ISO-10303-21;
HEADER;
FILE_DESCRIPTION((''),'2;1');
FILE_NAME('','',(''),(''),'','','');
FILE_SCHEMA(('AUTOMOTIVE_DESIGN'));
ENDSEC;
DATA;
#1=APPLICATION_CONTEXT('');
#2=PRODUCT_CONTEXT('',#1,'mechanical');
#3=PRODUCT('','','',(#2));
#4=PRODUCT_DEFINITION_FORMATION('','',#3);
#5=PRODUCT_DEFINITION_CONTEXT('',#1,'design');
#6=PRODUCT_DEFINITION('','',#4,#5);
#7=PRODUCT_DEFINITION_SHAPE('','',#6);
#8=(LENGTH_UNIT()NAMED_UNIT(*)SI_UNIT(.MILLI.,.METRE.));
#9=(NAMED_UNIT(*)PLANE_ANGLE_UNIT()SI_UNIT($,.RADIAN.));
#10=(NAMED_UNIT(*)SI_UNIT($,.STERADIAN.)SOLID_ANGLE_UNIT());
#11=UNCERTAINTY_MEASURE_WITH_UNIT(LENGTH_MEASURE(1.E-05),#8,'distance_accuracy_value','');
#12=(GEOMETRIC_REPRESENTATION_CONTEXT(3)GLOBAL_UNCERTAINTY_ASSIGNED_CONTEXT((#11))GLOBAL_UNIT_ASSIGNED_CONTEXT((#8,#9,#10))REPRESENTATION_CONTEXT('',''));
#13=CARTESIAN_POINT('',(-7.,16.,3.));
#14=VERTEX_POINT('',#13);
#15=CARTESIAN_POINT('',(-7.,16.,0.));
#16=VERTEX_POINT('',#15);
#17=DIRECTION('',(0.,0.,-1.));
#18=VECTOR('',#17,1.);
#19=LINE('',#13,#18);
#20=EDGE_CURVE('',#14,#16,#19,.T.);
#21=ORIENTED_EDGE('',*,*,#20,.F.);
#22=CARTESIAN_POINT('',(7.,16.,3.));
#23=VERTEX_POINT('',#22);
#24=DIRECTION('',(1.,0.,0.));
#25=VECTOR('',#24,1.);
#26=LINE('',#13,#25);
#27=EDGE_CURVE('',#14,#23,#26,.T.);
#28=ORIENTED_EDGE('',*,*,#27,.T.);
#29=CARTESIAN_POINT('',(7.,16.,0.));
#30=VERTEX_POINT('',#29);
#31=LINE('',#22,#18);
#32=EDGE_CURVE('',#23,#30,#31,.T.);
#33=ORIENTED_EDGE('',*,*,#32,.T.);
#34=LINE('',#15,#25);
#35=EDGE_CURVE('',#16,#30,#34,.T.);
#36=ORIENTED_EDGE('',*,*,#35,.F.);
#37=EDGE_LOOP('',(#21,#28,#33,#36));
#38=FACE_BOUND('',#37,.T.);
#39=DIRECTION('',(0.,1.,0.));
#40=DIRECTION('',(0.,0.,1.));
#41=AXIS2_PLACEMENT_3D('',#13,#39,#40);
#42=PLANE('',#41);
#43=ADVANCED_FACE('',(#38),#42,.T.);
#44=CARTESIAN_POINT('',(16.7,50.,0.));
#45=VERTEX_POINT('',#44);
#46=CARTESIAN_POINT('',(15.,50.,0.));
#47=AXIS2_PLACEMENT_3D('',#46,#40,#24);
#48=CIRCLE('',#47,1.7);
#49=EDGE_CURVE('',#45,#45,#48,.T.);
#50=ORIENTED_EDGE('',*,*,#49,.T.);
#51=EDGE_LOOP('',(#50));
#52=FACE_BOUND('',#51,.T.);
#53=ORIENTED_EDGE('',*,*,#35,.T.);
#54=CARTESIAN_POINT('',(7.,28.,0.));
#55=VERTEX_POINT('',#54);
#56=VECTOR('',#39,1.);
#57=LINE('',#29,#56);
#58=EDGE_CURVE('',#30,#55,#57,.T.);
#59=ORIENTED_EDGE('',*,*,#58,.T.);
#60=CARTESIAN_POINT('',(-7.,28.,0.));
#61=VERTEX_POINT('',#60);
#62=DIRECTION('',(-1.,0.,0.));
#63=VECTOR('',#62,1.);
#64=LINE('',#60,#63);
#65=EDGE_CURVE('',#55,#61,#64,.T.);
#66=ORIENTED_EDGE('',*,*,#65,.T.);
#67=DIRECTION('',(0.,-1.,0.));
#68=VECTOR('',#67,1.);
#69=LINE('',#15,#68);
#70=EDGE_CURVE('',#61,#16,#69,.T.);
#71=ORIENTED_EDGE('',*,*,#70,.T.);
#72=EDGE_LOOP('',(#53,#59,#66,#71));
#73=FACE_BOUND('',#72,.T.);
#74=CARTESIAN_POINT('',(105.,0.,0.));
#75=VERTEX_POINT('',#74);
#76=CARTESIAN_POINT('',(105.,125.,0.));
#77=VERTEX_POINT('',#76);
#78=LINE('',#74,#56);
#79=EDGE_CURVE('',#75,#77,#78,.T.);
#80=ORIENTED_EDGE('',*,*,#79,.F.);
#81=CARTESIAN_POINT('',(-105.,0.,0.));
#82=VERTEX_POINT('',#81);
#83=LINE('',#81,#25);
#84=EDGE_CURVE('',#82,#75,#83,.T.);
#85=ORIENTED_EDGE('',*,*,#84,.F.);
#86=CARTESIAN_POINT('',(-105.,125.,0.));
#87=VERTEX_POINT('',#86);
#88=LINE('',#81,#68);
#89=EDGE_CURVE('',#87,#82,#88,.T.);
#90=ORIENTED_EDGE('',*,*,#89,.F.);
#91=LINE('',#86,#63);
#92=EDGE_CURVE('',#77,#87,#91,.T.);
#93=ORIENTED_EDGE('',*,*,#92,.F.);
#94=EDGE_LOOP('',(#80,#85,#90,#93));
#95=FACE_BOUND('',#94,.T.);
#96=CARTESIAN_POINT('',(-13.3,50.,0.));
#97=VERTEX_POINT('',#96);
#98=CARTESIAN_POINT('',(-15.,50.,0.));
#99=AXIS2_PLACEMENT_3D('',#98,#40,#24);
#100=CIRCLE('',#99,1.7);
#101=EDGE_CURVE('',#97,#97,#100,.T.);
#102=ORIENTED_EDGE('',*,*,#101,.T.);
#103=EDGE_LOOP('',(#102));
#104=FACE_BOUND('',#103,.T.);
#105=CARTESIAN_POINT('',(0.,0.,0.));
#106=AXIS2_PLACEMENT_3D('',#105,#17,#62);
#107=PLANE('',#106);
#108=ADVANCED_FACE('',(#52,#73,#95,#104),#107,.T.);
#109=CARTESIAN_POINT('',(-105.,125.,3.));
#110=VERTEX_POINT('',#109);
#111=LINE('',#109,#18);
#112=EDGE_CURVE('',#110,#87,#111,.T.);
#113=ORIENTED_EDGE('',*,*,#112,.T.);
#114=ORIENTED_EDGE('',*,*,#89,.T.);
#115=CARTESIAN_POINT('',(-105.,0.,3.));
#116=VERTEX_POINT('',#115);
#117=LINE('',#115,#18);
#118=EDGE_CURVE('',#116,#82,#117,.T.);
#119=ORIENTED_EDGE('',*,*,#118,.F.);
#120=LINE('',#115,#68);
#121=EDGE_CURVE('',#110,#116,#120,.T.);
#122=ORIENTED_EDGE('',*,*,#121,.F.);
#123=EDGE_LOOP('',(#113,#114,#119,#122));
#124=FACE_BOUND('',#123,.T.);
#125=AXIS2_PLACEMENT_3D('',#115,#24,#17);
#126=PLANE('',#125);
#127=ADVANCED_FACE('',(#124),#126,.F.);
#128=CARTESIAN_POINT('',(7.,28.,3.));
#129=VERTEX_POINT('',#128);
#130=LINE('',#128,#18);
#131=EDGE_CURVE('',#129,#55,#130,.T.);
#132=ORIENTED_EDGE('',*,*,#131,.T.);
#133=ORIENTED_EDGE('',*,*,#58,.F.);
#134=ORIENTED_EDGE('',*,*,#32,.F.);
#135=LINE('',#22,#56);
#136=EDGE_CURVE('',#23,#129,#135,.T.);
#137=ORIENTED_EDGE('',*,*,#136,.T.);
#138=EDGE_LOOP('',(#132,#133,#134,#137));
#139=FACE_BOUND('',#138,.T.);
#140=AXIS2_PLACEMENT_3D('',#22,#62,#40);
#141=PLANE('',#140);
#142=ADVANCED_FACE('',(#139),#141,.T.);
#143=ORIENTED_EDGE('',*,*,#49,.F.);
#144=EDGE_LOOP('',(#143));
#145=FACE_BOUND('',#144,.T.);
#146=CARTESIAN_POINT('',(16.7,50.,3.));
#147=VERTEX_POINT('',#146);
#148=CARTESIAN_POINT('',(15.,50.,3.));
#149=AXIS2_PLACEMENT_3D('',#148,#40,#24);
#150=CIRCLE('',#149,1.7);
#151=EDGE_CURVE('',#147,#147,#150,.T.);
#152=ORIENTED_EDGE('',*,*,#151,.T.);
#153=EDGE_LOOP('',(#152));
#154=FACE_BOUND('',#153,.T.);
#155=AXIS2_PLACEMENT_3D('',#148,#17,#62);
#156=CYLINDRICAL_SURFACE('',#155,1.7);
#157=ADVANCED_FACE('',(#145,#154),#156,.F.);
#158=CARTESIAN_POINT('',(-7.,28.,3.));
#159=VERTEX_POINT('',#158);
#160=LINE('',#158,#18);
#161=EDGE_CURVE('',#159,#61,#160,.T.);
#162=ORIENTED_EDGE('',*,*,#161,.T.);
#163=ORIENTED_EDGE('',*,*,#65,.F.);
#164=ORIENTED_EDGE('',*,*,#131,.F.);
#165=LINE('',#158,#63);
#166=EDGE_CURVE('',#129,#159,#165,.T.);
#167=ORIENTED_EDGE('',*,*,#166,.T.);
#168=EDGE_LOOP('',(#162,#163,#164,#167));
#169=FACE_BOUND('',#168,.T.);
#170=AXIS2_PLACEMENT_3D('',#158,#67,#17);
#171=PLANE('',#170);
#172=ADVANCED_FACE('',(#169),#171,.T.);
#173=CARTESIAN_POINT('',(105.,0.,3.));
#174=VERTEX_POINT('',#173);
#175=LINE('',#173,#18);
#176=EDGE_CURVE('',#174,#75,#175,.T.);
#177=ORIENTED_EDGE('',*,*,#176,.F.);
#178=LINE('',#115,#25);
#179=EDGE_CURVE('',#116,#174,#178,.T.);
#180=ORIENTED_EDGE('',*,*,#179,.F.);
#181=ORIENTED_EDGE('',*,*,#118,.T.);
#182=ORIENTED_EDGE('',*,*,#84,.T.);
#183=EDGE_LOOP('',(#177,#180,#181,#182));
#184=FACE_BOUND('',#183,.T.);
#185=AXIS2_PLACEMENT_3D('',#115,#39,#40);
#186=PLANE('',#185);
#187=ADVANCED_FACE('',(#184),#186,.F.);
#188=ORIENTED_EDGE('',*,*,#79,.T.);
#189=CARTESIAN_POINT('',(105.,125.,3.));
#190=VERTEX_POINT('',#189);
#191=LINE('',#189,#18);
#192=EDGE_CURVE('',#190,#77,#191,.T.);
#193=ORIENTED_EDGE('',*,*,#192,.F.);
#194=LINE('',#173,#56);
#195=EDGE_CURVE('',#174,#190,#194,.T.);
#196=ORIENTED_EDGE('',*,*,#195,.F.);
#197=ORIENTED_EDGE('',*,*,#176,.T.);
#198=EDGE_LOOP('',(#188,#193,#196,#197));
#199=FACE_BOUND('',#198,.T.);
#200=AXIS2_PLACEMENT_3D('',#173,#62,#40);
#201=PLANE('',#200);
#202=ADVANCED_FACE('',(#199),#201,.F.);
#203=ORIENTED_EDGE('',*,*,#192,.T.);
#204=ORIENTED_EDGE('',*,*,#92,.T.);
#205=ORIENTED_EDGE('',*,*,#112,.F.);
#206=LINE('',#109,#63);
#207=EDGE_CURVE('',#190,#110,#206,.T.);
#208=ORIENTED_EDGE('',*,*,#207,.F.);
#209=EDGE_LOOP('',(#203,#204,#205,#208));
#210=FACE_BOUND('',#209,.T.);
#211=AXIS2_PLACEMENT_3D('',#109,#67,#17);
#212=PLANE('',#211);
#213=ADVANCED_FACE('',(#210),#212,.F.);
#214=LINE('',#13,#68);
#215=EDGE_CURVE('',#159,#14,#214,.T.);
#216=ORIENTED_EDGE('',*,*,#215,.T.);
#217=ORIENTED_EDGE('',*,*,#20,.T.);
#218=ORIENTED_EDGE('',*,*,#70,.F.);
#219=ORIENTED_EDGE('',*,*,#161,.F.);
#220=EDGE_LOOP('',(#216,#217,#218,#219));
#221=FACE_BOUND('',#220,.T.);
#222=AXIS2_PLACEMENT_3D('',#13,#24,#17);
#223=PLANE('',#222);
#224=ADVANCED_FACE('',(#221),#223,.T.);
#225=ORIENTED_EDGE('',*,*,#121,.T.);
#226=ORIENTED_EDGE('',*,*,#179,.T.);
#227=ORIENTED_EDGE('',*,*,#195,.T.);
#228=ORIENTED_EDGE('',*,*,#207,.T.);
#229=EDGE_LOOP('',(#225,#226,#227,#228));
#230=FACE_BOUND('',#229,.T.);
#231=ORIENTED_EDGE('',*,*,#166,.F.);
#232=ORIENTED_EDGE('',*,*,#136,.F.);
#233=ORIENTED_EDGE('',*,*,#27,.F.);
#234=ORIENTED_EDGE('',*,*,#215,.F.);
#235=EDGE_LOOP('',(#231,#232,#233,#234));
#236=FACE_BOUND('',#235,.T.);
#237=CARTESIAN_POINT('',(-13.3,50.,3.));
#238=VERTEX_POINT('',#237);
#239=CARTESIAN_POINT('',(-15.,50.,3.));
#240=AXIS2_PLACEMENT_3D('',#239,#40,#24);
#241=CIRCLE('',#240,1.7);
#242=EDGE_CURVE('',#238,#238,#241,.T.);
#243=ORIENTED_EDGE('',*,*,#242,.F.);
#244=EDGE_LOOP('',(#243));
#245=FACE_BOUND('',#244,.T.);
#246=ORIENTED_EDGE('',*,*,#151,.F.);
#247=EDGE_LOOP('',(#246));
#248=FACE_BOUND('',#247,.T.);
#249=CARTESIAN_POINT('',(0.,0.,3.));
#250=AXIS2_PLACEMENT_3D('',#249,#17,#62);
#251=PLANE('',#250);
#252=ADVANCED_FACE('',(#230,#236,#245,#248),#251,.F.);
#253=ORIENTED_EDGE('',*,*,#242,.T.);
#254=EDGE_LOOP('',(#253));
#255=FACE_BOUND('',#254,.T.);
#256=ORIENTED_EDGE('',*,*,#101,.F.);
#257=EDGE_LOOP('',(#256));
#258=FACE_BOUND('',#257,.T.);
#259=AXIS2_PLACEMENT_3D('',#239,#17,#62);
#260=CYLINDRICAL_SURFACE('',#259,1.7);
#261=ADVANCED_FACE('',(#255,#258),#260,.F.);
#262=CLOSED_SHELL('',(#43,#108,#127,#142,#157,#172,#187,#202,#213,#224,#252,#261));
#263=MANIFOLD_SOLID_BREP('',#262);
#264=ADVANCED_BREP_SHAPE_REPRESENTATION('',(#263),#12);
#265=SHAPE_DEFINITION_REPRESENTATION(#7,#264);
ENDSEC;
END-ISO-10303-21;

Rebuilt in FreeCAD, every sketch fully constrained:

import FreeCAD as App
import Part
import Sketcher
Q = App.Units.Quantity

doc = App.newDocument("Part")
body = doc.addObject("PartDesign::Body", "Body")

sketch1 = body.newObject("Sketcher::SketchObject", "Sketch")
sketch1.AttachmentSupport = (doc.getObject("XY_Plane"), [""])
sketch1.MapMode = "FlatFace"
sketch1.addGeometry([
    Part.LineSegment(App.Vector(-105, 125, 0), App.Vector(-105, 0, 0)),
    Part.LineSegment(App.Vector(-105, 0, 0), App.Vector(105, 0, 0)),
    Part.LineSegment(App.Vector(105, 0, 0), App.Vector(105, 125, 0)),
    Part.LineSegment(App.Vector(105, 125, 0), App.Vector(-105, 125, 0)),
], False)
sketch1.addConstraint([
    Sketcher.Constraint("Coincident", 0, 2, 1, 1),
    Sketcher.Constraint("Coincident", 1, 2, 2, 1),
    Sketcher.Constraint("Coincident", 2, 2, 3, 1),
    Sketcher.Constraint("Coincident", 3, 2, 0, 1),
    Sketcher.Constraint("Vertical", 0),
    Sketcher.Constraint("Horizontal", 1),
    Sketcher.Constraint("Vertical", 2),
    Sketcher.Constraint("Horizontal", 3),
    Sketcher.Constraint("Symmetric", 0, 2, 1, 2, -1, 1),
    Sketcher.Constraint("DistanceX", 1, 1, 1, 2, Q("210 mm")),
    Sketcher.Constraint("DistanceY", 0, 2, 0, 1, Q("125 mm")),
])
pad1 = body.newObject("PartDesign::Pad", "Pad")
pad1.Profile = sketch1
pad1.Length = 3

sketch2 = body.newObject("Sketcher::SketchObject", "Sketch001")
sketch2.AttachmentSupport = (doc.getObject("XY_Plane"), [""])
sketch2.MapMode = "FlatFace"
sketch2.addGeometry([
    Part.Circle(App.Vector(15, 50, 0), App.Vector(0, 0, 1), 1.7),
    Part.Circle(App.Vector(-15, 50, 0), App.Vector(0, 0, 1), 1.7),
], False)
sketch2.addConstraint([
    Sketcher.Constraint("Equal", 0, 1),
    Sketcher.Constraint("Symmetric", 0, 3, 1, 3, -2),
    Sketcher.Constraint("Diameter", 0, Q("3.4 mm")),
    Sketcher.Constraint("DistanceX", -1, 1, 0, 3, Q("15 mm")),
    Sketcher.Constraint("DistanceY", -1, 1, 0, 3, Q("50 mm")),
])
pocket1 = body.newObject("PartDesign::Pocket", "Pocket")
pocket1.Profile = sketch2
pocket1.Length = 3
pocket1.Reversed = True

sketch3 = body.newObject("Sketcher::SketchObject", "Sketch002")
sketch3.AttachmentSupport = (doc.getObject("XY_Plane"), [""])
sketch3.MapMode = "FlatFace"
sketch3.addGeometry([
    Part.LineSegment(App.Vector(-7, 28, 0), App.Vector(-7, 16, 0)),
    Part.LineSegment(App.Vector(-7, 16, 0), App.Vector(7, 16, 0)),
    Part.LineSegment(App.Vector(7, 16, 0), App.Vector(7, 28, 0)),
    Part.LineSegment(App.Vector(7, 28, 0), App.Vector(-7, 28, 0)),
], False)
sketch3.addConstraint([
    Sketcher.Constraint("Coincident", 0, 2, 1, 1),
    Sketcher.Constraint("Coincident", 1, 2, 2, 1),
    Sketcher.Constraint("Coincident", 2, 2, 3, 1),
    Sketcher.Constraint("Coincident", 3, 2, 0, 1),
    Sketcher.Constraint("Vertical", 0),
    Sketcher.Constraint("Horizontal", 1),
    Sketcher.Constraint("Vertical", 2),
    Sketcher.Constraint("Horizontal", 3),
    Sketcher.Constraint("DistanceX", 1, 1, 1, 2, Q("14 mm")),
    Sketcher.Constraint("DistanceY", 0, 2, 0, 1, Q("12 mm")),
    Sketcher.Constraint("DistanceX", 0, 2, -1, 1, Q("7 mm")),
    Sketcher.Constraint("DistanceY", -1, 1, 0, 2, Q("16 mm")),
])
pocket2 = body.newObject("PartDesign::Pocket", "Pocket001")
pocket2.Profile = sketch3
pocket2.Length = 3
pocket2.Reversed = True

doc.recompute()
